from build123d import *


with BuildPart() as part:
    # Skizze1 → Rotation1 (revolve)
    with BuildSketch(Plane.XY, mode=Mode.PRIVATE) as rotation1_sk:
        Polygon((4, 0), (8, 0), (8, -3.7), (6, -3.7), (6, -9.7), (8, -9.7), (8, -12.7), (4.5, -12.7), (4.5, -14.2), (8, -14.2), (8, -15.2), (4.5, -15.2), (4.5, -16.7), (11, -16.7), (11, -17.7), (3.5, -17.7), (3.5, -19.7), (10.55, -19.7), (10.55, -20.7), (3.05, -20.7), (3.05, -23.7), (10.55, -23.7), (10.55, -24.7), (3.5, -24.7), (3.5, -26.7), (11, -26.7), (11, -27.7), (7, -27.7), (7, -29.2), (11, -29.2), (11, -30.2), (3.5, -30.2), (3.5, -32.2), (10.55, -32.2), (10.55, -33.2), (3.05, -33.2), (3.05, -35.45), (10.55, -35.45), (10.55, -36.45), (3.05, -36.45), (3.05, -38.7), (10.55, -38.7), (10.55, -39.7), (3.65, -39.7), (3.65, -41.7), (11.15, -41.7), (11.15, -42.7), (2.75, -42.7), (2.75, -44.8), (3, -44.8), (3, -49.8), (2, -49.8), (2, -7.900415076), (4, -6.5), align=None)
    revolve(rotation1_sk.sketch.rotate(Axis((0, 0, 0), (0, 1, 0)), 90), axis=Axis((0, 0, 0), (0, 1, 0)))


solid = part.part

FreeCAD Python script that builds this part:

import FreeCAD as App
import Part
import Sketcher
Q = App.Units.Quantity


def add_polygon(sketch, points):
    """Adds a closed chain of lines whose ends are joined by coincident constraints."""
    first, n = sketch.GeometryCount, len(points)
    for a, b in zip(points, points[1:] + points[:1]):
        sketch.addGeometry(Part.LineSegment(App.Vector(*a, 0), App.Vector(*b, 0)), False)
    for i in range(n):
        sketch.addConstraint(Sketcher.Constraint("Coincident", first + i, 2, first + (i + 1) % n, 1))

doc = App.newDocument("Part")
body = doc.addObject("PartDesign::Body", "Body")

# Sketch on XY plane
sketch1 = body.newObject("Sketcher::SketchObject", "Sketch")
sketch1.AttachmentSupport = (doc.getObject("XY_Plane"), [""])
sketch1.MapMode = "FlatFace"
add_polygon(sketch1, [(8, 0), (4, 0), (4, -6.5), (2, -7.9), (2, -49.8), (3, -49.8), (3, -44.8), (2.75, -44.8), (2.75, -42.7), (11.15, -42.7), (11.15, -41.7), (3.65, -41.7), (3.65, -39.7), (10.55, -39.7), (10.55, -38.7), (3.05, -38.7), (3.05, -36.45), (10.55, -36.45), (10.55, -35.45), (3.05, -35.45), (3.05, -33.2), (10.55, -33.2), (10.55, -32.2), (3.5, -32.2), (3.5, -30.2), (11, -30.2), (11, -29.2), (7, -29.2), (7, -27.7), (11, -27.7), (11, -26.7), (3.5, -26.7), (3.5, -24.7), (10.55, -24.7), (10.55, -23.7), (3.05, -23.7), (3.05, -20.7), (10.55, -20.7), (10.55, -19.7), (3.5, -19.7), (3.5, -17.7), (11, -17.7), (11, -16.7), (4.5, -16.7), (4.5, -15.2), (8, -15.2), (8, -14.2), (4.5, -14.2), (4.5, -12.7), (8, -12.7), (8, -9.7), (6, -9.7), (6, -3.7), (8, -3.7)])  # lines 0-53
sketch1.addConstraint(Sketcher.Constraint("Horizontal", 0))
sketch1.addConstraint(Sketcher.Constraint("Vertical", 1))
sketch1.addConstraint(Sketcher.Constraint("Vertical", 3))
sketch1.addConstraint(Sketcher.Constraint("Horizontal", 4))
sketch1.addConstraint(Sketcher.Constraint("Vertical", 5))
sketch1.addConstraint(Sketcher.Constraint("Horizontal", 6))
sketch1.addConstraint(Sketcher.Constraint("Vertical", 7))
sketch1.addConstraint(Sketcher.Constraint("Horizontal", 8))
sketch1.addConstraint(Sketcher.Constraint("Vertical", 9))
sketch1.addConstraint(Sketcher.Constraint("Horizontal", 10))
sketch1.addConstraint(Sketcher.Constraint("Vertical", 11))
sketch1.addConstraint(Sketcher.Constraint("Horizontal", 12))
sketch1.addConstraint(Sketcher.Constraint("Vertical", 13))
sketch1.addConstraint(Sketcher.Constraint("Horizontal", 14))
sketch1.addConstraint(Sketcher.Constraint("Vertical", 15))
sketch1.addConstraint(Sketcher.Constraint("Horizontal", 16))
sketch1.addConstraint(Sketcher.Constraint("Vertical", 17))
sketch1.addConstraint(Sketcher.Constraint("Horizontal", 18))
sketch1.addConstraint(Sketcher.Constraint("Vertical", 19))
sketch1.addConstraint(Sketcher.Constraint("Horizontal", 20))
sketch1.addConstraint(Sketcher.Constraint("Vertical", 21))
sketch1.addConstraint(Sketcher.Constraint("Horizontal", 22))
sketch1.addConstraint(Sketcher.Constraint("Vertical", 23))
sketch1.addConstraint(Sketcher.Constraint("Horizontal", 24))
sketch1.addConstraint(Sketcher.Constraint("Vertical", 25))
sketch1.addConstraint(Sketcher.Constraint("Horizontal", 26))
sketch1.addConstraint(Sketcher.Constraint("Vertical", 27))
sketch1.addConstraint(Sketcher.Constraint("Horizontal", 28))
sketch1.addConstraint(Sketcher.Constraint("Vertical", 29))
sketch1.addConstraint(Sketcher.Constraint("Horizontal", 30))
sketch1.addConstraint(Sketcher.Constraint("Vertical", 31))
sketch1.addConstraint(Sketcher.Constraint("Horizontal", 32))
sketch1.addConstraint(Sketcher.Constraint("Vertical", 33))
sketch1.addConstraint(Sketcher.Constraint("Horizontal", 34))
sketch1.addConstraint(Sketcher.Constraint("Vertical", 35))
sketch1.addConstraint(Sketcher.Constraint("Horizontal", 36))
sketch1.addConstraint(Sketcher.Constraint("Vertical", 37))
sketch1.addConstraint(Sketcher.Constraint("Horizontal", 38))
sketch1.addConstraint(Sketcher.Constraint("Vertical", 39))
sketch1.addConstraint(Sketcher.Constraint("Horizontal", 40))
sketch1.addConstraint(Sketcher.Constraint("Vertical", 41))
sketch1.addConstraint(Sketcher.Constraint("Horizontal", 42))
sketch1.addConstraint(Sketcher.Constraint("Vertical", 43))
sketch1.addConstraint(Sketcher.Constraint("Horizontal", 44))
sketch1.addConstraint(Sketcher.Constraint("Vertical", 45))
sketch1.addConstraint(Sketcher.Constraint("Horizontal", 46))
sketch1.addConstraint(Sketcher.Constraint("Vertical", 47))
sketch1.addConstraint(Sketcher.Constraint("Horizontal", 48))
sketch1.addConstraint(Sketcher.Constraint("Vertical", 49))
sketch1.addConstraint(Sketcher.Constraint("Horizontal", 50))
sketch1.addConstraint(Sketcher.Constraint("Vertical", 51))
sketch1.addConstraint(Sketcher.Constraint("Horizontal", 52))
sketch1.addConstraint(Sketcher.Constraint("Vertical", 53))
sketch1.addConstraint(Sketcher.Constraint("PointOnObject", 0, 2, -1))
sketch1.addConstraint(Sketcher.Constraint("Vertical", 13, 2, 16, 2))
sketch1.addConstraint(Sketcher.Constraint("Vertical", 15, 2, 18, 2))
sketch1.addConstraint(Sketcher.Constraint("Vertical", 17, 2, 20, 2))
sketch1.addConstraint(Sketcher.Constraint("Vertical", 25, 2, 28, 2))
sketch1.addConstraint(Sketcher.Constraint("Vertical", 23, 2, 30, 2))
sketch1.addConstraint(Sketcher.Constraint("Vertical", 21, 2, 32, 2))
sketch1.addConstraint(Sketcher.Constraint("Vertical", 19, 2, 34, 2))
sketch1.addConstraint(Sketcher.Constraint("Vertical", 33, 2, 36, 2))
sketch1.addConstraint(Sketcher.Constraint("Vertical", 31, 2, 38, 2))
sketch1.addConstraint(Sketcher.Constraint("Vertical", 29, 2, 40, 2))
sketch1.addConstraint(Sketcher.Constraint("Vertical", 43, 2, 46, 2))
sketch1.addConstraint(Sketcher.Constraint("Vertical", 45, 2, 48, 2))
sketch1.addConstraint(Sketcher.Constraint("Vertical", 49, 2, 52, 2))
sketch1.addConstraint(Sketcher.Constraint("Equal", 10, 14))
sketch1.addConstraint(Sketcher.Constraint("Equal", 20, 24))
sketch1.addConstraint(Sketcher.Constraint("Equal", 0, 26))
sketch1.addConstraint(Sketcher.Constraint("Equal", 42, 1))
sketch1.addConstraint(Sketcher.Constraint("Equal", 4, 9))
sketch1.addConstraint(Sketcher.Constraint("Equal", 52, 11))
sketch1.addConstraint(Sketcher.Constraint("Equal", 9, 13))
sketch1.addConstraint(Sketcher.Constraint("Equal", 13, 17))
sketch1.addConstraint(Sketcher.Constraint("Equal", 15, 19))
sketch1.addConstraint(Sketcher.Constraint("Equal", 17, 21))
sketch1.addConstraint(Sketcher.Constraint("Equal", 11, 23))
sketch1.addConstraint(Sketcher.Constraint("Equal", 21, 25))
sketch1.addConstraint(Sketcher.Constraint("Equal", 25, 29))
sketch1.addConstraint(Sketcher.Constraint("Equal", 23, 31))
sketch1.addConstraint(Sketcher.Constraint("Equal", 29, 33))
sketch1.addConstraint(Sketcher.Constraint("Equal", 33, 37))
sketch1.addConstraint(Sketcher.Constraint("Equal", 31, 39))
sketch1.addConstraint(Sketcher.Constraint("Equal", 37, 41))
sketch1.addConstraint(Sketcher.Constraint("Equal", 27, 43))
sketch1.addConstraint(Sketcher.Constraint("Equal", 41, 45))
sketch1.addConstraint(Sketcher.Constraint("Equal", 43, 47))
sketch1.addConstraint(Sketcher.Constraint("Equal", 35, 49))
sketch1.addConstraint(Sketcher.Constraint("DistanceX", 0, 2, 0, 1, 4.0))
sketch1.addConstraint(Sketcher.Constraint("DistanceX", 4, 1, 4, 2, 1.0))
sketch1.addConstraint(Sketcher.Constraint("DistanceX", 50, 2, 50, 1, 2.0))
sketch1.addConstraint(Sketcher.Constraint("DistanceY", 5, 1, 5, 2, 5.0))
sketch1.addConstraint(Sketcher.Constraint("DistanceY", 35, 1, 35, 2, 3.0))
sketch1.addConstraint(Sketcher.Constraint("DistanceY", 51, 1, 51, 2, 6.0))
sketch1.addConstraint(Sketcher.Constraint("Angle", 2, Q("-145 deg")))
sketch1.addConstraint(Sketcher.Constraint("DistanceX", 8, 1, 8, 2, 8.4))
sketch1.addConstraint(Sketcher.Constraint("DistanceX", 10, 2, 10, 1, 7.5))
sketch1.addConstraint(Sketcher.Constraint("DistanceX", 12, 1, 12, 2, 6.9))
sketch1.addConstraint(Sketcher.Constraint("DistanceX", 42, 2, 42, 1, 6.5))
sketch1.addConstraint(Sketcher.Constraint("DistanceX", 44, 1, 44, 2, 3.5))
sketch1.addConstraint(Sketcher.Constraint("DistanceY", 7, 1, 7, 2, 2.1))
sketch1.addConstraint(Sketcher.Constraint("DistanceY", 27, 1, 27, 2, 1.5))
sketch1.addConstraint(Sketcher.Constraint("DistanceY", 53, 1, 53, 2, 3.7))
sketch1.addConstraint(Sketcher.Constraint("DistanceX", -1, 1, 0, 2, 4.0))
sketch1.addConstraint(Sketcher.Constraint("DistanceX", -1, 1, 2, 2, 2.0))
sketch1.addConstraint(Sketcher.Constraint("DistanceX", 6, 2, 6, 1, 0.25))
sketch1.addConstraint(Sketcher.Constraint("DistanceY", 15, 1, 15, 2, 2.25))
revolution = body.newObject("PartDesign::Revolution", "Revolution")
revolution.Profile = sketch1
revolution.ReferenceAxis = (sketch1, ["V_Axis"])
revolution.Angle = 360

doc.recompute()
